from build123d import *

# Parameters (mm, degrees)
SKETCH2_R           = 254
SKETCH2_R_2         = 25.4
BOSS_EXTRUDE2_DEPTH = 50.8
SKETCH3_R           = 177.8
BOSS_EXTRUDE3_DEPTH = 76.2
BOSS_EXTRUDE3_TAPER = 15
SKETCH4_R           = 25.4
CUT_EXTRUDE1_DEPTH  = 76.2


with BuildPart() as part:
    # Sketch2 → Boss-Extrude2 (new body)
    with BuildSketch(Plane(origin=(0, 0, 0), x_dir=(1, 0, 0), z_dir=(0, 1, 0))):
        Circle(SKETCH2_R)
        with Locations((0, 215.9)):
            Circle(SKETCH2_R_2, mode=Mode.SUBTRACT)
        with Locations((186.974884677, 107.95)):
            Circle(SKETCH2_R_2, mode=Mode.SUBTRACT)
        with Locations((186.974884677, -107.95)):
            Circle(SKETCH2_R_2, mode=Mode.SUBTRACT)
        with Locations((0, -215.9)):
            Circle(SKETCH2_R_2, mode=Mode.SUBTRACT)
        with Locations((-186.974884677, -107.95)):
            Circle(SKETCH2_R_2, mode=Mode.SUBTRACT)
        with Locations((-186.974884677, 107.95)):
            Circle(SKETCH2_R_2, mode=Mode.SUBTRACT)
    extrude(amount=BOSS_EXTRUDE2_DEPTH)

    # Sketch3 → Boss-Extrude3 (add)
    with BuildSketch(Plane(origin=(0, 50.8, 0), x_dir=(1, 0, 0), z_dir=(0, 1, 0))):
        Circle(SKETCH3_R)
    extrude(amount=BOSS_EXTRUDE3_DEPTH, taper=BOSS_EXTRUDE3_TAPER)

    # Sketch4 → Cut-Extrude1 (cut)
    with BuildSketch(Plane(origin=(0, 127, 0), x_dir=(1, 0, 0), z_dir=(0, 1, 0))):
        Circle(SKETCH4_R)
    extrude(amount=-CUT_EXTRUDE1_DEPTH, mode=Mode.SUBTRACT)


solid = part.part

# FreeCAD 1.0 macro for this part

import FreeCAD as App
import Part
import Sketcher

V = App.Vector
Q = App.Units.Quantity

doc = App.newDocument("Part")
params = doc.addObject("Spreadsheet::Sheet", "Params")
for row, (alias, value) in enumerate([
    ("sketch1_diameter", "20 in"),
    ("sketch1_diameter2", "2 in"),
    ("pad1_length", "2 in"),
    ("sketch2_diameter", "14 in"),
    ("pad2_length", "3 in"),
    ("pad2_taper", "-15 deg"),
    ("sketch3_diameter", "2 in"),
    ("pocket1_length", "3 in"),
], start=1):
    params.set(f"A{row}", alias)
    params.set(f"B{row}", "=" + value)
    params.setAlias(f"B{row}", alias)

body = doc.addObject("PartDesign::Body", "Body")

# Sketch on XZ plane
sketch1 = body.newObject("Sketcher::SketchObject", "Sketch")
sketch1.AttachmentSupport = (doc.getObject("XZ_Plane"), [""])
sketch1.MapMode = "FlatFace"
sketch1.addGeometry(Part.Circle(V(0, 0, 0), V(0, 0, 1), 254), False)
sketch1.addGeometry(Part.Circle(V(-187, 108, 0), V(0, 0, 1), 25), False)
sketch1.addGeometry(Part.Circle(V(0, 216, 0), V(0, 0, 1), 25), False)
sketch1.addGeometry(Part.Circle(V(187, 108, 0), V(0, 0, 1), 25), False)
sketch1.addGeometry(Part.Circle(V(-187, -108, 0), V(0, 0, 1), 25), False)
sketch1.addGeometry(Part.Circle(V(187, -108, 0), V(0, 0, 1), 25), False)
sketch1.addGeometry(Part.Circle(V(0, -216, 0), V(0, 0, 1), 25), False)
sketch1.addConstraint(Sketcher.Constraint("Coincident", 0, 3, -1, 1))
sketch1.addConstraint(Sketcher.Constraint("Equal", 1, 2))
sketch1.addConstraint(Sketcher.Constraint("Equal", 2, 3))
sketch1.addConstraint(Sketcher.Constraint("Equal", 3, 4))
sketch1.addConstraint(Sketcher.Constraint("Equal", 4, 5))
sketch1.addConstraint(Sketcher.Constraint("Equal", 5, 6))
sketch1.addConstraint(Sketcher.Constraint("Symmetric", 3, 3, 4, 3, -1, 1))
sketch1.addConstraint(Sketcher.Constraint("Symmetric", 1, 3, 5, 3, -1, 1))
sketch1.addConstraint(Sketcher.Constraint("Symmetric", 2, 3, 6, 3, -1, 1))
sketch1.addConstraint(Sketcher.Constraint("Symmetric", 1, 3, 3, 3, -2))
sketch1.addConstraint(Sketcher.Constraint("PointOnObject", 2, 3, -2))
sketch1.addConstraint(Sketcher.Constraint("Diameter", 0, Q("20 in")))
sketch1.addConstraint(Sketcher.Constraint("Diameter", 1, Q("2 in")))
sketch1.addConstraint(Sketcher.Constraint("DistanceY", -1, 1, 2, 3, Q("8.5 in")))
sketch1.addConstraint(Sketcher.Constraint("DistanceY", 4, 3, 1, 3, Q("8.5 in")))
sketch1.addConstraint(Sketcher.Constraint("DistanceX", 1, 3, 3, 3, 373.949769))
sketch1.setExpression("Constraints[11]", "Params.sketch1_diameter")
sketch1.setExpression("Constraints[12]", "Params.sketch1_diameter2")
pad1 = body.newObject("PartDesign::Pad", "Pad")
pad1.Profile = sketch1
pad1.setExpression("Length", "Params.pad1_length")
pad1.Reversed = True

# Sketch on XZ plane
sketch2 = body.newObject("Sketcher::SketchObject", "Sketch001")
sketch2.AttachmentSupport = (doc.getObject("XZ_Plane"), [""])
sketch2.MapMode = "FlatFace"
sketch2.AttachmentOffset = App.Placement(V(0, 0, -2 * 25.4), App.Rotation())
sketch2.addGeometry(Part.Circle(V(0, 0, 0), V(0, 0, 1), 178), False)
sketch2.addConstraint(Sketcher.Constraint("Coincident", 0, 3, -1, 1))
sketch2.addConstraint(Sketcher.Constraint("Diameter", 0, Q("14 in")))
sketch2.setExpression("Constraints[1]", "Params.sketch2_diameter")
pad2 = body.newObject("PartDesign::Pad", "Pad001")
pad2.Profile = sketch2
pad2.setExpression("Length", "Params.pad2_length")
pad2.Reversed = True
pad2.setExpression("TaperAngle", "Params.pad2_taper")

# Sketch on XZ plane
sketch3 = body.newObject("Sketcher::SketchObject", "Sketch002")
sketch3.AttachmentSupport = (doc.getObject("XZ_Plane"), [""])
sketch3.MapMode = "FlatFace"
sketch3.AttachmentOffset = App.Placement(V(0, 0, -5 * 25.4), App.Rotation())
sketch3.addGeometry(Part.Circle(V(0, 0, 0), V(0, 0, 1), 25), False)
sketch3.addConstraint(Sketcher.Constraint("Coincident", 0, 3, -1, 1))
sketch3.addConstraint(Sketcher.Constraint("Diameter", 0, Q("2 in")))
sketch3.setExpression("Constraints[1]", "Params.sketch3_diameter")
pocket1 = body.newObject("PartDesign::Pocket", "Pocket")
pocket1.Profile = sketch3
pocket1.setExpression("Length", "Params.pocket1_length")
pocket1.Reversed = True

doc.recompute()
